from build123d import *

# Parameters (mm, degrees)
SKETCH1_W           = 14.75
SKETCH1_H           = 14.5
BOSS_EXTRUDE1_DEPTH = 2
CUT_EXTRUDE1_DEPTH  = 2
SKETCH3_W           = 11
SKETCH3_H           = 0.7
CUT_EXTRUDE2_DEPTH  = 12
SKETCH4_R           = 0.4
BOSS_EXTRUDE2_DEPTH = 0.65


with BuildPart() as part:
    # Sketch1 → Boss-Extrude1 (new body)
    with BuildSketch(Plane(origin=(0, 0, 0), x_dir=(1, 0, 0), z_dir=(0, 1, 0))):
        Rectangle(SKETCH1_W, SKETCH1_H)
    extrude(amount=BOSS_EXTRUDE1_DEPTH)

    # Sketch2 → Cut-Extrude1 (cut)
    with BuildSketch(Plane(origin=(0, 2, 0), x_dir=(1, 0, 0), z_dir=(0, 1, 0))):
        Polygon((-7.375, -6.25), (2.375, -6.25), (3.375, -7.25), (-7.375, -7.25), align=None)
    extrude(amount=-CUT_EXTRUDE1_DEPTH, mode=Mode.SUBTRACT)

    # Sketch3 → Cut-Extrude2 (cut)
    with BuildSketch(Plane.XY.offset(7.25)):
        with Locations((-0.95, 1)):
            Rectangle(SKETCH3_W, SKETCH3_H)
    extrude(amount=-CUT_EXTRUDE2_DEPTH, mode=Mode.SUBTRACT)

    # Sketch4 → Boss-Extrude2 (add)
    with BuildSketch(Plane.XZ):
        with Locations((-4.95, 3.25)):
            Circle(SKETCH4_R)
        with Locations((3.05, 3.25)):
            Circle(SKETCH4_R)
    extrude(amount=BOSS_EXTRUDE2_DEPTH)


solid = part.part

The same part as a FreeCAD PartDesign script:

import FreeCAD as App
import Part
import Sketcher
from FreeCAD import Vector
Q = App.Units.Quantity


def add_polygon(sketch, points):
    """Adds a closed chain of lines whose ends are joined by coincident constraints."""
    first, n = sketch.GeometryCount, len(points)
    for a, b in zip(points, points[1:] + points[:1]):
        sketch.addGeometry(Part.LineSegment(App.Vector(*a, 0), App.Vector(*b, 0)), False)
    for i in range(n):
        sketch.addConstraint(Sketcher.Constraint("Coincident", first + i, 2, first + (i + 1) % n, 1))

doc = App.newDocument("Part")
params = doc.addObject("Spreadsheet::Sheet", "Params")
for row, (alias, value) in enumerate([
    ("sketch1_height", "14.5 mm"),
    ("sketch1_width", "14.75 mm"),
    ("pad1_length", "2 mm"),
    ("sketch2_height", "1 mm"),
    ("sketch2_width", "9.75 mm"),
    ("pocket1_length", "2 mm"),
    ("sketch3_width", "11 mm"),
    ("sketch3_height", "0.7 mm"),
    ("pocket2_length", "12 mm"),
    ("sketch4_diameter", "0.8 mm"),
    ("pad2_length", "0.65 mm"),
], start=1):
    params.set(f"A{row}", alias)
    params.set(f"B{row}", "=" + value)
    params.setAlias(f"B{row}", alias)

body = doc.addObject("PartDesign::Body", "Body")

# Sketch on XZ plane
sketch1 = doc.addObject("Sketcher::SketchObject", "Sketch")
body.addObject(sketch1)
sketch1.AttachmentSupport = (doc.XZ_Plane, [""])
sketch1.MapMode = "FlatFace"
add_polygon(sketch1, [(-7, -7), (-7, 7), (7, 7), (7, -7)])  # lines 0-3
sketch1.addConstraint(Sketcher.Constraint("Vertical", 0))
sketch1.addConstraint(Sketcher.Constraint("Horizontal", 1))
sketch1.addConstraint(Sketcher.Constraint("Vertical", 2))
sketch1.addConstraint(Sketcher.Constraint("Horizontal", 3))
sketch1.addConstraint(Sketcher.Constraint("Symmetric", 0, 2, 2, 2, -1, 1))
sketch1.addConstraint(Sketcher.Constraint("DistanceY", 0, 1, 0, 2, 14.5))
sketch1.addConstraint(Sketcher.Constraint("DistanceX", 1, 1, 1, 2, 14.75))
sketch1.setExpression("Constraints[9]", "Params.sketch1_height")
sketch1.setExpression("Constraints[10]", "Params.sketch1_width")
pad1 = doc.addObject("PartDesign::Pad", "Pad")
body.addObject(pad1)
pad1.Profile = sketch1
pad1.setExpression("Length", "Params.pad1_length")
pad1.Reversed = True

# Sketch on XZ plane
sketch2 = doc.addObject("Sketcher::SketchObject", "Sketch001")
body.addObject(sketch2)
sketch2.AttachmentSupport = (doc.XZ_Plane, [""])
sketch2.MapMode = "FlatFace"
sketch2.AttachmentOffset = App.Placement(Vector(0, 0, -2), App.Rotation())
add_polygon(sketch2, [(2.4, 6.2), (-7.4, 6.2), (-7.4, 7.2), (3.4, 7.2)])  # lines 0-3
sketch2.addConstraint(Sketcher.Constraint("Horizontal", 0))
sketch2.addConstraint(Sketcher.Constraint("Vertical", 1))
sketch2.addConstraint(Sketcher.Constraint("Horizontal", 2))
sketch2.addConstraint(Sketcher.Constraint("DistanceY", 1, 1, 1, 2, 1.0))
sketch2.addConstraint(Sketcher.Constraint("Angle", 3, Q("-135 deg")))
sketch2.addConstraint(Sketcher.Constraint("DistanceX", 0, 2, 0, 1, 9.75))
sketch2.addConstraint(Sketcher.Constraint("DistanceY", -1, 1, 0, 2, 6.25))
sketch2.addConstraint(Sketcher.Constraint("DistanceX", 0, 2, -1, 1, 7.375))
sketch2.setExpression("Constraints[7]", "Params.sketch2_height")
sketch2.setExpression("Constraints[9]", "Params.sketch2_width")
pocket1 = doc.addObject("PartDesign::Pocket", "Pocket")
body.addObject(pocket1)
pocket1.Profile = sketch2
pocket1.setExpression("Length", "Params.pocket1_length")
pocket1.Reversed = True

# Sketch on XY plane
sketch3 = doc.addObject("Sketcher::SketchObject", "Sketch002")
body.addObject(sketch3)
sketch3.AttachmentSupport = (doc.XY_Plane, [""])
sketch3.MapMode = "FlatFace"
sketch3.AttachmentOffset = App.Placement(Vector(0, 0, 7.25), App.Rotation())
add_polygon(sketch3, [(-6.5, 1.4), (-6.5, 0.7), (4.5, 0.7), (4.5, 1.4)])  # lines 0-3
sketch3.addConstraint(Sketcher.Constraint("Vertical", 0))
sketch3.addConstraint(Sketcher.Constraint("Horizontal", 1))
sketch3.addConstraint(Sketcher.Constraint("Vertical", 2))
sketch3.addConstraint(Sketcher.Constraint("Horizontal", 3))
sketch3.addConstraint(Sketcher.Constraint("DistanceX", 1, 1, 1, 2, 11.0))
sketch3.addConstraint(Sketcher.Constraint("DistanceY", 0, 2, 0, 1, 0.7))
sketch3.addConstraint(Sketcher.Constraint("DistanceX", 0, 2, -1, 1, 6.45))
sketch3.addConstraint(Sketcher.Constraint("DistanceY", -1, 1, 0, 2, 0.65))
sketch3.setExpression("Constraints[8]", "Params.sketch3_width")
sketch3.setExpression("Constraints[9]", "Params.sketch3_height")
pocket2 = doc.addObject("PartDesign::Pocket", "Pocket001")
body.addObject(pocket2)
pocket2.Profile = sketch3
pocket2.setExpression("Length", "Params.pocket2_length")

# Sketch on XZ plane
sketch4 = doc.addObject("Sketcher::SketchObject", "Sketch003")
body.addObject(sketch4)
sketch4.AttachmentSupport = (doc.XZ_Plane, [""])
sketch4.MapMode = "FlatFace"
sketch4.addGeometry(Part.Circle(Vector(-4.95, 3.25, 0), Vector(0, 0, 1), 0.4), False)
sketch4.addGeometry(Part.Circle(Vector(3.05, 3.25, 0), Vector(0, 0, 1), 0.4), False)
sketch4.addConstraint(Sketcher.Constraint("Equal", 0, 1))
sketch4.addConstraint(Sketcher.Constraint("Horizontal", 0, 3, 1, 3))
sketch4.addConstraint(Sketcher.Constraint("Diameter", 0, 0.8))
sketch4.addConstraint(Sketcher.Constraint("DistanceX", 0, 3, 1, 3, 8.0))
sketch4.addConstraint(Sketcher.Constraint("DistanceX", 0, 3, -1, 1, 4.95))
sketch4.addConstraint(Sketcher.Constraint("DistanceY", -1, 1, 0, 3, 3.25))
sketch4.setExpression("Constraints[2]", "Params.sketch4_diameter")
pad2 = doc.addObject("PartDesign::Pad", "Pad001")
body.addObject(pad2)
pad2.Profile = sketch4
pad2.setExpression("Length", "Params.pad2_length")

doc.recompute()
